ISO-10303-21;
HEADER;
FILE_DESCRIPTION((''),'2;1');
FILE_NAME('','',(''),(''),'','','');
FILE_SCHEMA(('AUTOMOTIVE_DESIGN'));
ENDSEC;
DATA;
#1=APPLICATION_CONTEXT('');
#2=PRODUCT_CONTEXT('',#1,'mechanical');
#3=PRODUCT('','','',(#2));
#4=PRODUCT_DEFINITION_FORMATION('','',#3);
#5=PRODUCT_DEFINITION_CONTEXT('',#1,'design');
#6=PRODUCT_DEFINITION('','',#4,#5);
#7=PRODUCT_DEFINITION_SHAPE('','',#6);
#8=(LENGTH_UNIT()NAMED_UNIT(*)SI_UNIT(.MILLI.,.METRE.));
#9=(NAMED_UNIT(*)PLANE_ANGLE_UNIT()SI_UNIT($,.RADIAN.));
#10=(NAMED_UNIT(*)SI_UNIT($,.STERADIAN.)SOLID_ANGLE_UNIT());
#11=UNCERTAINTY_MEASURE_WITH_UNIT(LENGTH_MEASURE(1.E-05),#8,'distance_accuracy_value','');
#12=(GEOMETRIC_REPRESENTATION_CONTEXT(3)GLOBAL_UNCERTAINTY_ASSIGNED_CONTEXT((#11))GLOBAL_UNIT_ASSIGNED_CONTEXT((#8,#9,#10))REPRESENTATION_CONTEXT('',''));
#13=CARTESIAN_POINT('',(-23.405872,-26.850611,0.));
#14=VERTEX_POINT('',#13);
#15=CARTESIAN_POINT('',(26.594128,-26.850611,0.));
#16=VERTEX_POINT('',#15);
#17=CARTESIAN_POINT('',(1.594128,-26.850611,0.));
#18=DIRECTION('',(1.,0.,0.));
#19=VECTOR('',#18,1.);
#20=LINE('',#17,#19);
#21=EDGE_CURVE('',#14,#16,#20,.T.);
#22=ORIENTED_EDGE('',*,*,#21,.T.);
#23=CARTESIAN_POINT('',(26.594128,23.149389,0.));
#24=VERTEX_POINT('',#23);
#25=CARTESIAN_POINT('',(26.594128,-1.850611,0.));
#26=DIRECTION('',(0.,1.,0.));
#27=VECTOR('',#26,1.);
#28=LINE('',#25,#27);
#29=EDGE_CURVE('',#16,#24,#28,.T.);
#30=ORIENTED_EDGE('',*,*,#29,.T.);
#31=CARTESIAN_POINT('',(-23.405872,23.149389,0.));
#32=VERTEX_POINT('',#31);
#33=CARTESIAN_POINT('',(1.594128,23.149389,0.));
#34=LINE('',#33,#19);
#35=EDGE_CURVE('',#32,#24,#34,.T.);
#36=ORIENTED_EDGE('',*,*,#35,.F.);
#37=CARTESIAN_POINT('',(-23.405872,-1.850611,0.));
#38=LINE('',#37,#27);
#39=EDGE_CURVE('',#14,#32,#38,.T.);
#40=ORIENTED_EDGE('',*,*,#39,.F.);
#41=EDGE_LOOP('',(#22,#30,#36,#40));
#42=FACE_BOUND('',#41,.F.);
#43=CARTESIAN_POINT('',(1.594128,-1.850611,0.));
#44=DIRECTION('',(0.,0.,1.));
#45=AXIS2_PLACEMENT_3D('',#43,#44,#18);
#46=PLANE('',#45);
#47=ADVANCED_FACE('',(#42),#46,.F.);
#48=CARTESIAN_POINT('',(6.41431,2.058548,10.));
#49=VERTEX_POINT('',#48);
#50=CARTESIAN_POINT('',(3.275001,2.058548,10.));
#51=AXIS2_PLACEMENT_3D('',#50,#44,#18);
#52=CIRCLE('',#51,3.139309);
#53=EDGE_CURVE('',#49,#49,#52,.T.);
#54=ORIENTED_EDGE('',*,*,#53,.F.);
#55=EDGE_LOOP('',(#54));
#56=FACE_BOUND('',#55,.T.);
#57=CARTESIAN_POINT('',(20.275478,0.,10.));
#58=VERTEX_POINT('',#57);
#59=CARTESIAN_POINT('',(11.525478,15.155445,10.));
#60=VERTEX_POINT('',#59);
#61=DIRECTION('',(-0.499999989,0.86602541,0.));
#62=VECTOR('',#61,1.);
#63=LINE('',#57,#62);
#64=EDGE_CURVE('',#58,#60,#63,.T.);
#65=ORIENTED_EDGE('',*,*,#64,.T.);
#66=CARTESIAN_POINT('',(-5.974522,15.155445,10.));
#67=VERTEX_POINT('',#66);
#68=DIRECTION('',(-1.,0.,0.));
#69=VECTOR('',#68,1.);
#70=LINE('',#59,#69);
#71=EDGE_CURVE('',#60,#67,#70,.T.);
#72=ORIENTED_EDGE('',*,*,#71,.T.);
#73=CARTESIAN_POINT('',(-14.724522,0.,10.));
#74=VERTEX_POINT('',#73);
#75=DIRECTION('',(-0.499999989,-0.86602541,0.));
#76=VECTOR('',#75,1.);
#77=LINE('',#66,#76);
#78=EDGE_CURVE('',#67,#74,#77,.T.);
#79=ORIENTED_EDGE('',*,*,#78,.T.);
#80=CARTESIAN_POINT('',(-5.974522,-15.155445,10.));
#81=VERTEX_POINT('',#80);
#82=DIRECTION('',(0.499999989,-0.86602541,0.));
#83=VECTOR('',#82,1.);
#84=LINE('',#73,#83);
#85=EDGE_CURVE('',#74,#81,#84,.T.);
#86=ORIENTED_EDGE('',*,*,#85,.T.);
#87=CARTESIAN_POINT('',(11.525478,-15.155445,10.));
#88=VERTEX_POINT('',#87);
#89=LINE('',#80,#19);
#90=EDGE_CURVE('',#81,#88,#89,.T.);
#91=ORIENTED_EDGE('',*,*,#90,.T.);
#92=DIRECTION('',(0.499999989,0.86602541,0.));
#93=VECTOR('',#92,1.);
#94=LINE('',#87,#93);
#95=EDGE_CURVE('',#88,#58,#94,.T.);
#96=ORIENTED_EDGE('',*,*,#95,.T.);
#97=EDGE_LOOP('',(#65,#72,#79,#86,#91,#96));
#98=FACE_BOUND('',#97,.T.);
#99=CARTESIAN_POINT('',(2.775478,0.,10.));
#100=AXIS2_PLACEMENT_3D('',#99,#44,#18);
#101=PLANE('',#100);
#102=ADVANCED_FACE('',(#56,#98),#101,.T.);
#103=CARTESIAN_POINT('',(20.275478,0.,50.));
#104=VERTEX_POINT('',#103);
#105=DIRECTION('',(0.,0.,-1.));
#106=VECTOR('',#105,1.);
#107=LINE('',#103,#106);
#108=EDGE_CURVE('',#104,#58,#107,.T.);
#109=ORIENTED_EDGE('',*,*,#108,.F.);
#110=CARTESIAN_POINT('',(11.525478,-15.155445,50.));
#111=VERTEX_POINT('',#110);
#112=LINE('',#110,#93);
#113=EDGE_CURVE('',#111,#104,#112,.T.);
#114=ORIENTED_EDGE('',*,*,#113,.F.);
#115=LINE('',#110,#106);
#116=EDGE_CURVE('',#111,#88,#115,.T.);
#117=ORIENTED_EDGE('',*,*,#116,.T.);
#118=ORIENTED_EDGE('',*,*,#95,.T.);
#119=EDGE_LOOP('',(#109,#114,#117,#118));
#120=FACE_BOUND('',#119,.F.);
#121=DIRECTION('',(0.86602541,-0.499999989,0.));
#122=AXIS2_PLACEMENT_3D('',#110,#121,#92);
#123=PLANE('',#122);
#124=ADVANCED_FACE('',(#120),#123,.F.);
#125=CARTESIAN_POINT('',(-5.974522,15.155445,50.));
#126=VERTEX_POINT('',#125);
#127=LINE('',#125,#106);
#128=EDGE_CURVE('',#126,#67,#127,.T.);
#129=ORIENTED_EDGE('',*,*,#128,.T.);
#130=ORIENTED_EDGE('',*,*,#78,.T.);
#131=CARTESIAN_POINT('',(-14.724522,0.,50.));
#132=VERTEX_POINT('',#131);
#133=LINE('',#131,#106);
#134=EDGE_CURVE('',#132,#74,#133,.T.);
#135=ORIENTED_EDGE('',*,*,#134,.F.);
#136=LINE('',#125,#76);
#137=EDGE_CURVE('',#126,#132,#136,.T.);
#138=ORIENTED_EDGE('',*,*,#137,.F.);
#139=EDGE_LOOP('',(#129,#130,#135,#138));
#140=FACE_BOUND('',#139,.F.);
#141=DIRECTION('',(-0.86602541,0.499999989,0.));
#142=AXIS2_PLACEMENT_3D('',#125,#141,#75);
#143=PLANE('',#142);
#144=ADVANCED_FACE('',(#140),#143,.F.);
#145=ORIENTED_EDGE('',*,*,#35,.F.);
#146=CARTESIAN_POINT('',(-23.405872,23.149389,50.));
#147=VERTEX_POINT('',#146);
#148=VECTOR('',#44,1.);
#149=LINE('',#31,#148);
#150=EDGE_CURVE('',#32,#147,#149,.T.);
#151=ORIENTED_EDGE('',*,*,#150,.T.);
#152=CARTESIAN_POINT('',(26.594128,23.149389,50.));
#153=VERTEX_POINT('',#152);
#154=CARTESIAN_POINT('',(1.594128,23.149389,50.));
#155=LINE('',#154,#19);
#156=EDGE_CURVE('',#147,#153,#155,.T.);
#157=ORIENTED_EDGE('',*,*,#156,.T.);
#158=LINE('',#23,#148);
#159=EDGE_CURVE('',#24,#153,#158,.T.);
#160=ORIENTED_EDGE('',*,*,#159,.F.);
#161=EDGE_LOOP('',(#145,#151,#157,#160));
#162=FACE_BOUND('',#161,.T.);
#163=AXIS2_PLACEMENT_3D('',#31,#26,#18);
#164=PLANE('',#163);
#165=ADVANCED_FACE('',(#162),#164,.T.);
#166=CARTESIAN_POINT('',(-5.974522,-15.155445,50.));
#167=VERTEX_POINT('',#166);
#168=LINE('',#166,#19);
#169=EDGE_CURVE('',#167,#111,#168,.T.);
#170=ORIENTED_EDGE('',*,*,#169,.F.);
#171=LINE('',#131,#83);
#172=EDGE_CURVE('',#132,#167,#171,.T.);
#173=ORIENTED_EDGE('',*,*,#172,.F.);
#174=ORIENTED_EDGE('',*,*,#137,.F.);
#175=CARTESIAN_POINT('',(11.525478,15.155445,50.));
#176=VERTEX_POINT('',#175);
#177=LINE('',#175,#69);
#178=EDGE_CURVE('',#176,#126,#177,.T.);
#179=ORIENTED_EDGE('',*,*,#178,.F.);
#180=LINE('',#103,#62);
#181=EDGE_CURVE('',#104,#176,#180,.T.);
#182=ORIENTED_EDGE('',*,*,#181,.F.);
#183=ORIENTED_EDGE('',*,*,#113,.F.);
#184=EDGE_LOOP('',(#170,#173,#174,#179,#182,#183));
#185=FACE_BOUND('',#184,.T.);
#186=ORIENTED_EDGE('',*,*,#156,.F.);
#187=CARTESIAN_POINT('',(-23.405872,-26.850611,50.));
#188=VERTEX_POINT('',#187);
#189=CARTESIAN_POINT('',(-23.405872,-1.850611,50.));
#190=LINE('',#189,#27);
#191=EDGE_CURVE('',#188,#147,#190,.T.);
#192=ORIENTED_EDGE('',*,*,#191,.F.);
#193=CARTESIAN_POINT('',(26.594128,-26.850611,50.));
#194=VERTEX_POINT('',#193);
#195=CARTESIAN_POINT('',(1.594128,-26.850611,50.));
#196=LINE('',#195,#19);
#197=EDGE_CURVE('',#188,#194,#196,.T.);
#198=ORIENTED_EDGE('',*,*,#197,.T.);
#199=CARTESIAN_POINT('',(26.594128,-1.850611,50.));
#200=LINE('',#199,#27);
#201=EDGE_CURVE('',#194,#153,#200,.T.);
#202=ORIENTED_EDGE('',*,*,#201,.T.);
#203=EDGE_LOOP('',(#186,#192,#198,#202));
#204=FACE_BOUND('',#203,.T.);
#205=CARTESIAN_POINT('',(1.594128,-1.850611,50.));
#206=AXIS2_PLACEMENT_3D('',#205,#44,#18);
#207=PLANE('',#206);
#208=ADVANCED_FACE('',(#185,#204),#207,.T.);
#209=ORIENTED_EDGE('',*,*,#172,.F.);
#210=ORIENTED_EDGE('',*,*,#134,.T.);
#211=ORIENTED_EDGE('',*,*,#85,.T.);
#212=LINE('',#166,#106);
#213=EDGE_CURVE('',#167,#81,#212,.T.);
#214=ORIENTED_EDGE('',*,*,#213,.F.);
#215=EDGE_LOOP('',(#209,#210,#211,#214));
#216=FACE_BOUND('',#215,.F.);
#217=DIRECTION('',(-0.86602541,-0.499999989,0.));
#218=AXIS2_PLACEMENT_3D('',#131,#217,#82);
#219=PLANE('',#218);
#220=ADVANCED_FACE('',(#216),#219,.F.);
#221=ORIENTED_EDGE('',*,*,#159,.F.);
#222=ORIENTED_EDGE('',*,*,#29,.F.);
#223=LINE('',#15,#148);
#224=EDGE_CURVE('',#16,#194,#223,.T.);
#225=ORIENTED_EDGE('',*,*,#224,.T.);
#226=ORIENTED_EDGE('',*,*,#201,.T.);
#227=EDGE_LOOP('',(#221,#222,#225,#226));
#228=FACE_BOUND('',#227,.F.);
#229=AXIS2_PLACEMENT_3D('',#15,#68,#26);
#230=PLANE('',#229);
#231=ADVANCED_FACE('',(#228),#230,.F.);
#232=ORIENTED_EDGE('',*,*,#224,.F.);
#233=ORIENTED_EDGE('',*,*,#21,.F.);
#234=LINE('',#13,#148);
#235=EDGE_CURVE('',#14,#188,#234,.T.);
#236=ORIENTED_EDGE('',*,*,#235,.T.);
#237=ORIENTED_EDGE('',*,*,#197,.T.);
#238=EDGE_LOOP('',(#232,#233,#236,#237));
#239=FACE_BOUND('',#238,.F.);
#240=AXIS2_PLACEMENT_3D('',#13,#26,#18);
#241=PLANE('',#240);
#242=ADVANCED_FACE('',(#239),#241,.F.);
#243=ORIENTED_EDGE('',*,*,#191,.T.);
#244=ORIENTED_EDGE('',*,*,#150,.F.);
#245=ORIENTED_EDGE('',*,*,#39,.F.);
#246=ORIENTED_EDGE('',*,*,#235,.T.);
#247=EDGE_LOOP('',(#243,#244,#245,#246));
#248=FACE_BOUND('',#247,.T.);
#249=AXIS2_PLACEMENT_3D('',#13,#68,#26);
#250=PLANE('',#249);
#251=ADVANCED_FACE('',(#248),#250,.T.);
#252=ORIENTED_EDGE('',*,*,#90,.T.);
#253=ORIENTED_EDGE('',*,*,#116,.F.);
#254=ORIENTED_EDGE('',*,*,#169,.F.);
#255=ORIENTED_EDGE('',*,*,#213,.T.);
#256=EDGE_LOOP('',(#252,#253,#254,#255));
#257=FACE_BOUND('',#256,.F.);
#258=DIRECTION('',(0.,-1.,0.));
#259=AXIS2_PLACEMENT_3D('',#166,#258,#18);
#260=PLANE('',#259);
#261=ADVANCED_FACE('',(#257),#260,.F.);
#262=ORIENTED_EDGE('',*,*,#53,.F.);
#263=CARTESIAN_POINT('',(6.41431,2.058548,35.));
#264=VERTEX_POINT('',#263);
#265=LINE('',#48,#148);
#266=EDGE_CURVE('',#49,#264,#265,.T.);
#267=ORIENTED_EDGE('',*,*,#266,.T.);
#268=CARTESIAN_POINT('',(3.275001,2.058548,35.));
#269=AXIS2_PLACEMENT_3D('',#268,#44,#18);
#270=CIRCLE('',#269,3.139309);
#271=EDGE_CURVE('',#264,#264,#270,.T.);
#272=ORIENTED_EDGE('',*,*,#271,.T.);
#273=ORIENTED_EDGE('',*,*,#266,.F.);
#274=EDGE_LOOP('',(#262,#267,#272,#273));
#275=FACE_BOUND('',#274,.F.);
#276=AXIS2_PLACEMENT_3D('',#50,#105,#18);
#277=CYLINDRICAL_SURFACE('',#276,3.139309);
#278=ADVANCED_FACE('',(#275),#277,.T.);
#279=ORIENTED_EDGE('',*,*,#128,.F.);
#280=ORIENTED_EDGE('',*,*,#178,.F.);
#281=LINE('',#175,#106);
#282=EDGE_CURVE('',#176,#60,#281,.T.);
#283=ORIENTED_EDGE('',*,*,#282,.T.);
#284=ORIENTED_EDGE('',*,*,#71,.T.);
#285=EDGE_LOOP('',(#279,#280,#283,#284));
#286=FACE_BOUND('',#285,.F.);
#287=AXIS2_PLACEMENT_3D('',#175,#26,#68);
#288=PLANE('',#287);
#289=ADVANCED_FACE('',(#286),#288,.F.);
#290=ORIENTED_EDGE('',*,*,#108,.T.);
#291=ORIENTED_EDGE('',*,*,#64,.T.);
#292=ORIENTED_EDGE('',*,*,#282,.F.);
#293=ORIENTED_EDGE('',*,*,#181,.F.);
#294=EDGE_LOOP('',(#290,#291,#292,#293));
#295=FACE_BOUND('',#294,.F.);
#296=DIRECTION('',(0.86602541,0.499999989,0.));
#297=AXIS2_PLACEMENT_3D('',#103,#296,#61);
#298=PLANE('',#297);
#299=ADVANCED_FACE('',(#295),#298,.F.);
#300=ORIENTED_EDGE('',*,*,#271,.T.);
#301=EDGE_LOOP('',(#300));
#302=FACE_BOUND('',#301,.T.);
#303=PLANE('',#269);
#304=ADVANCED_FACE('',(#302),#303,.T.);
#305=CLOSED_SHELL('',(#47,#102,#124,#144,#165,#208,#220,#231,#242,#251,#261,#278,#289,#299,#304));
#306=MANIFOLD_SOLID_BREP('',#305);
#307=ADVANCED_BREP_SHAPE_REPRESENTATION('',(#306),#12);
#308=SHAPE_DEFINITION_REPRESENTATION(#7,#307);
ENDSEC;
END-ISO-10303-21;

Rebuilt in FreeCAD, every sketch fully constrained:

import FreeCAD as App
import Part
import Sketcher
Q = App.Units.Quantity

doc = App.newDocument("Part")
body = doc.addObject("PartDesign::Body", "Body")

sketch1 = body.newObject("Sketcher::SketchObject", "Sketch")
sketch1.AttachmentSupport = (doc.getObject("XY_Plane"), [""])
sketch1.MapMode = "FlatFace"
sketch1.addGeometry([
    Part.LineSegment(App.Vector(-23.405872, 23.149389, 0), App.Vector(-23.405872, -26.850611, 0)),
    Part.LineSegment(App.Vector(-23.405872, -26.850611, 0), App.Vector(26.594128, -26.850611, 0)),
    Part.LineSegment(App.Vector(26.594128, -26.850611, 0), App.Vector(26.594128, 23.149389, 0)),
    Part.LineSegment(App.Vector(26.594128, 23.149389, 0), App.Vector(-23.405872, 23.149389, 0)),
], False)
sketch1.addConstraint([
    Sketcher.Constraint("Coincident", 0, 2, 1, 1),
    Sketcher.Constraint("Coincident", 1, 2, 2, 1),
    Sketcher.Constraint("Coincident", 2, 2, 3, 1),
    Sketcher.Constraint("Coincident", 3, 2, 0, 1),
    Sketcher.Constraint("Vertical", 0),
    Sketcher.Constraint("Horizontal", 1),
    Sketcher.Constraint("Vertical", 2),
    Sketcher.Constraint("Horizontal", 3),
    Sketcher.Constraint("Equal", 3, 0),
    Sketcher.Constraint("DistanceX", 1, 1, 1, 2, 50.0),
    Sketcher.Constraint("DistanceX", 0, 2, -1, 1, 23.405872),
    Sketcher.Constraint("DistanceY", 0, 2, -1, 1, 26.850611),
])
pad1 = body.newObject("PartDesign::Pad", "Pad")
pad1.Profile = sketch1
pad1.Length = 50

sketch2 = body.newObject("Sketcher::SketchObject", "Sketch001")
sketch2.AttachmentSupport = (doc.getObject("XY_Plane"), [""])
sketch2.MapMode = "FlatFace"
sketch2.AttachmentOffset = App.Placement(App.Vector(0, 0, 50), App.Rotation())
sketch2.addGeometry([
    Part.LineSegment(App.Vector(-5.974522, -15.155445, 0), App.Vector(11.525478, -15.155445, 0)),
    Part.LineSegment(App.Vector(11.525478, -15.155445, 0), App.Vector(20.275478, 0, 0)),
    Part.LineSegment(App.Vector(20.275478, 0, 0), App.Vector(11.525478, 15.155445, 0)),
    Part.LineSegment(App.Vector(11.525478, 15.155445, 0), App.Vector(-5.974522, 15.155445, 0)),
    Part.LineSegment(App.Vector(-5.974522, 15.155445, 0), App.Vector(-14.724522, 0, 0)),
    Part.LineSegment(App.Vector(-14.724522, 0, 0), App.Vector(-5.974522, -15.155445, 0)),
], False)
sketch2.addConstraint([
    Sketcher.Constraint("Coincident", 0, 2, 1, 1),
    Sketcher.Constraint("Coincident", 1, 2, 2, 1),
    Sketcher.Constraint("Coincident", 2, 2, 3, 1),
    Sketcher.Constraint("Coincident", 3, 2, 4, 1),
    Sketcher.Constraint("Coincident", 4, 2, 5, 1),
    Sketcher.Constraint("Coincident", 5, 2, 0, 1),
    Sketcher.Constraint("Horizontal", 0),
    Sketcher.Constraint("Horizontal", 3),
    Sketcher.Constraint("Symmetric", 0, 2, 2, 2, -1),
    Sketcher.Constraint("PointOnObject", 1, 2, -1),
    Sketcher.Constraint("PointOnObject", 4, 2, -1),
    Sketcher.Constraint("Parallel", 1, 4),
    Sketcher.Constraint("Parallel", 2, 5),
    Sketcher.Constraint("Angle", 1, Q("60.000001 deg")),
    Sketcher.Constraint("DistanceX", 0, 1, 0, 2, 17.5),
    Sketcher.Constraint("DistanceX", 4, 2, 1, 2, 35.0),
    Sketcher.Constraint("DistanceX", -1, 1, 0, 2, 11.525478),
])
pocket1 = body.newObject("PartDesign::Pocket", "Pocket")
pocket1.Profile = sketch2
pocket1.Length = 40

sketch3 = body.newObject("Sketcher::SketchObject", "Sketch002")
sketch3.AttachmentSupport = (doc.getObject("XY_Plane"), [""])
sketch3.MapMode = "FlatFace"
sketch3.AttachmentOffset = App.Placement(App.Vector(0, 0, 10), App.Rotation())
sketch3.addGeometry(Part.Circle(App.Vector(3.275001, 2.058548, 0), App.Vector(0, 0, 1), 3.139309), False)
sketch3.addConstraint([
    Sketcher.Constraint("Diameter", 0, 6.278618),
    Sketcher.Constraint("DistanceX", -1, 1, 0, 3, 3.275001),
    Sketcher.Constraint("DistanceY", -1, 1, 0, 3, 2.058548),
])
pad2 = body.newObject("PartDesign::Pad", "Pad001")
pad2.Profile = sketch3
pad2.Length = 25

doc.recompute()
